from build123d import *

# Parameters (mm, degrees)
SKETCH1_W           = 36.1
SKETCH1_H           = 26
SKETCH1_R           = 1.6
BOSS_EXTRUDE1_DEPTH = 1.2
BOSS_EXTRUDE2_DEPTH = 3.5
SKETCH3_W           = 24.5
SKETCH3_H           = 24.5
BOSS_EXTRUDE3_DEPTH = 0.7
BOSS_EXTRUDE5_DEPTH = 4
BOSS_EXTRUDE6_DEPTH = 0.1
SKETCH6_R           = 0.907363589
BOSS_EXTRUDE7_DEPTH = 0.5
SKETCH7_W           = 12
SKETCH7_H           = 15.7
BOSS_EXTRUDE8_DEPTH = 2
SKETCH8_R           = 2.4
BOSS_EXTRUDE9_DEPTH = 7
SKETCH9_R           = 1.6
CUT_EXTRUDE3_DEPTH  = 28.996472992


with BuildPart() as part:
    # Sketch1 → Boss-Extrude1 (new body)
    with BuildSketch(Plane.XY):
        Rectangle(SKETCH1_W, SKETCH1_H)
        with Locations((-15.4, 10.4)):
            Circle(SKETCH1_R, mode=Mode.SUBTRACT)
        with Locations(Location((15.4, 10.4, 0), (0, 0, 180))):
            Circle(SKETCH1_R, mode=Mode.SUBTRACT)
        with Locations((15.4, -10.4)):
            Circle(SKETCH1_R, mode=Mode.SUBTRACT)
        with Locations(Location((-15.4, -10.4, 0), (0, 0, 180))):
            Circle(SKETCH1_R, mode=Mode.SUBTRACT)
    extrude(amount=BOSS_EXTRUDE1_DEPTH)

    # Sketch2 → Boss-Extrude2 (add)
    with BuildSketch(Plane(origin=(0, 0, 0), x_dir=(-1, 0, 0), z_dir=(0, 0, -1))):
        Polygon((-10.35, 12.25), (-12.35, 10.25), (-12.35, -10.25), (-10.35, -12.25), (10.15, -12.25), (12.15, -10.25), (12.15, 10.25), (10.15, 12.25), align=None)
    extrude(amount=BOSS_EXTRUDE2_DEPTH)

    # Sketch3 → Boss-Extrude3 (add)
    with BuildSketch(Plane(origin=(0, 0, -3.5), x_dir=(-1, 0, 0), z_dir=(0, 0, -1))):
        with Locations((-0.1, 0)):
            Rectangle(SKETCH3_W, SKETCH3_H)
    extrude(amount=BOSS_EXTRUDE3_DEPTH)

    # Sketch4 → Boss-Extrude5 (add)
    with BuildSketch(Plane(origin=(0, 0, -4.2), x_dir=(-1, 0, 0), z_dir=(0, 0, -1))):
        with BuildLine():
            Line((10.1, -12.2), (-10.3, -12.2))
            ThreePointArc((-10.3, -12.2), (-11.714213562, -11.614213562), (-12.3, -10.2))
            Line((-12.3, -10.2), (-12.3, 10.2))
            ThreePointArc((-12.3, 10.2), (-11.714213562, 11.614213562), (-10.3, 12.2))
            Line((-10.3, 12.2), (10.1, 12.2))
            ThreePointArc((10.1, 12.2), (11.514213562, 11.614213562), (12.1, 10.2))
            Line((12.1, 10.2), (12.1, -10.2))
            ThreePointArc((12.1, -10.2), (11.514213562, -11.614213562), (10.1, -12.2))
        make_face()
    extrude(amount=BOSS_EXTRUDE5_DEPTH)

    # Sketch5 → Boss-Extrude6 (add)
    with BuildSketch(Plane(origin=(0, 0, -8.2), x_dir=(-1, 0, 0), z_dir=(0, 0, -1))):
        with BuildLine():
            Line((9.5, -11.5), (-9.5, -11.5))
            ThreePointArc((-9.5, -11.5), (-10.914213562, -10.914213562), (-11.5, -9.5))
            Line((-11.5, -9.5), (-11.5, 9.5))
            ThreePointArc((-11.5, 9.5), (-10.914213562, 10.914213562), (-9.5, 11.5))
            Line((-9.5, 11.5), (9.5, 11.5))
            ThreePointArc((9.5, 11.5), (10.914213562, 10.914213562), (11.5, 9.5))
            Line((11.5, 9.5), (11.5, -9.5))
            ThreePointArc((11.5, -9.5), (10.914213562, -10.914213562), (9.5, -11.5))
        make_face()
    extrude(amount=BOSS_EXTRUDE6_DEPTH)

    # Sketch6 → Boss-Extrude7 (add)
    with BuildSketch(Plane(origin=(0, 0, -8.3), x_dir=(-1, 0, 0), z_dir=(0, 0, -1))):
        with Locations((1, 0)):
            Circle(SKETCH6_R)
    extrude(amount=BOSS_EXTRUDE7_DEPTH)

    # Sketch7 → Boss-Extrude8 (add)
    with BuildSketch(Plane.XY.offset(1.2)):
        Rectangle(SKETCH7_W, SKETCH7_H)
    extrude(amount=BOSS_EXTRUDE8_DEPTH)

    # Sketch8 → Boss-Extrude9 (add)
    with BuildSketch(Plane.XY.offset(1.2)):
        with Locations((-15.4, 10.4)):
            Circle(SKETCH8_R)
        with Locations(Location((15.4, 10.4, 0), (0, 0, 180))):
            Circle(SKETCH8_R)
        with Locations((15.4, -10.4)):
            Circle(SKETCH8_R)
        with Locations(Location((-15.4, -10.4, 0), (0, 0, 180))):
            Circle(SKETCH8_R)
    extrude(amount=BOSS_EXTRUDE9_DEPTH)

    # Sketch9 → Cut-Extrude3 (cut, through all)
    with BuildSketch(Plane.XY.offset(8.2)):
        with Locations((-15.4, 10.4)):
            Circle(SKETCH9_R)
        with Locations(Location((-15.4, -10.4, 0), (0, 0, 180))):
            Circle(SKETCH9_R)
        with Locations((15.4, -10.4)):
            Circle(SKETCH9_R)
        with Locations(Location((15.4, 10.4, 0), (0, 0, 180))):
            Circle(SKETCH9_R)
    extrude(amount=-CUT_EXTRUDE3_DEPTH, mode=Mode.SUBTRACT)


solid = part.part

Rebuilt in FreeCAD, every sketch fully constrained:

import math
import FreeCAD as App
import Part
import Sketcher
Q = App.Units.Quantity

doc = App.newDocument("Part")
body = doc.addObject("PartDesign::Body", "Body")

# Sketch on XY plane
sketch1 = body.newObject("Sketcher::SketchObject", "Sketch")
sketch1.AttachmentSupport = (doc.getObject("XY_Plane"), [""])
sketch1.MapMode = "FlatFace"
sketch1.addGeometry(Part.LineSegment(App.Vector(-18.1, 13, 0), App.Vector(-18.1, -13, 0)), False)
sketch1.addGeometry(Part.LineSegment(App.Vector(-18.1, -13, 0), App.Vector(18.1, -13, 0)), False)
sketch1.addGeometry(Part.LineSegment(App.Vector(18.1, -13, 0), App.Vector(18.1, 13, 0)), False)
sketch1.addGeometry(Part.LineSegment(App.Vector(18.1, 13, 0), App.Vector(-18.1, 13, 0)), False)
sketch1.addGeometry(Part.Circle(App.Vector(-15.4, -10.4, 0), App.Vector(0, 0, 1), 1.6), False)
sketch1.addGeometry(Part.Circle(App.Vector(15.4, -10.4, 0), App.Vector(0, 0, 1), 1.6), False)
sketch1.addGeometry(Part.Circle(App.Vector(-15.4, 10.4, 0), App.Vector(0, 0, 1), 1.6), False)
sketch1.addGeometry(Part.Circle(App.Vector(15.4, 10.4, 0), App.Vector(0, 0, 1), 1.6), False)
sketch1.addConstraint(Sketcher.Constraint("Coincident", 0, 2, 1, 1))
sketch1.addConstraint(Sketcher.Constraint("Coincident", 1, 2, 2, 1))
sketch1.addConstraint(Sketcher.Constraint("Coincident", 2, 2, 3, 1))
sketch1.addConstraint(Sketcher.Constraint("Coincident", 3, 2, 0, 1))
sketch1.addConstraint(Sketcher.Constraint("Vertical", 0))
sketch1.addConstraint(Sketcher.Constraint("Horizontal", 1))
sketch1.addConstraint(Sketcher.Constraint("Vertical", 2))
sketch1.addConstraint(Sketcher.Constraint("Horizontal", 3))
sketch1.addConstraint(Sketcher.Constraint("Equal", 4, 5))
sketch1.addConstraint(Sketcher.Constraint("Equal", 5, 6))
sketch1.addConstraint(Sketcher.Constraint("Equal", 6, 7))
sketch1.addConstraint(Sketcher.Constraint("Symmetric", 5, 3, 6, 3, -1, 1))
sketch1.addConstraint(Sketcher.Constraint("Symmetric", 4, 3, 7, 3, -1, 1))
sketch1.addConstraint(Sketcher.Constraint("Symmetric", 0, 2, 2, 2, -1, 1))
sketch1.addConstraint(Sketcher.Constraint("Symmetric", 4, 3, 5, 3, -2))
sketch1.addConstraint(Sketcher.Constraint("Diameter", 4, Q("3.2 mm")))
sketch1.addConstraint(Sketcher.Constraint("DistanceY", 0, 2, 0, 1, Q("26 mm")))
sketch1.addConstraint(Sketcher.Constraint("DistanceX", 1, 1, 1, 2, Q("36.1 mm")))
sketch1.addConstraint(Sketcher.Constraint("DistanceX", 4, 3, -1, 1, Q("15.4 mm")))
sketch1.addConstraint(Sketcher.Constraint("DistanceY", 4, 3, -1, 1, Q("10.4 mm")))
pad1 = body.newObject("PartDesign::Pad", "Pad")
pad1.Profile = sketch1
pad1.Length = 1.2

# Sketch on XY plane
sketch2 = body.newObject("Sketcher::SketchObject", "Sketch001")
sketch2.AttachmentSupport = (doc.getObject("XY_Plane"), [""])
sketch2.MapMode = "FlatFace"
sketch2.addGeometry(Part.LineSegment(App.Vector(10.3, 12.2, 0), App.Vector(12.3, 10.2, 0)), False)
sketch2.addGeometry(Part.LineSegment(App.Vector(12.3, 10.2, 0), App.Vector(12.3, -10.2, 0)), False)
sketch2.addGeometry(Part.LineSegment(App.Vector(12.3, -10.2, 0), App.Vector(10.3, -12.2, 0)), False)
sketch2.addGeometry(Part.LineSegment(App.Vector(10.3, -12.2, 0), App.Vector(-10.2, -12.2, 0)), False)
sketch2.addGeometry(Part.LineSegment(App.Vector(-10.2, -12.2, 0), App.Vector(-12.2, -10.2, 0)), False)
sketch2.addGeometry(Part.LineSegment(App.Vector(-12.2, -10.2, 0), App.Vector(-12.2, 10.2, 0)), False)
sketch2.addGeometry(Part.LineSegment(App.Vector(-12.2, 10.2, 0), App.Vector(-10.2, 12.2, 0)), False)
sketch2.addGeometry(Part.LineSegment(App.Vector(-10.2, 12.2, 0), App.Vector(10.3, 12.2, 0)), False)
sketch2.addConstraint(Sketcher.Constraint("Coincident", 0, 2, 1, 1))
sketch2.addConstraint(Sketcher.Constraint("Coincident", 1, 2, 2, 1))
sketch2.addConstraint(Sketcher.Constraint("Coincident", 2, 2, 3, 1))
sketch2.addConstraint(Sketcher.Constraint("Coincident", 3, 2, 4, 1))
sketch2.addConstraint(Sketcher.Constraint("Coincident", 4, 2, 5, 1))
sketch2.addConstraint(Sketcher.Constraint("Coincident", 5, 2, 6, 1))
sketch2.addConstraint(Sketcher.Constraint("Coincident", 6, 2, 7, 1))
sketch2.addConstraint(Sketcher.Constraint("Coincident", 7, 2, 0, 1))
sketch2.addConstraint(Sketcher.Constraint("Vertical", 1))
sketch2.addConstraint(Sketcher.Constraint("Horizontal", 3))
sketch2.addConstraint(Sketcher.Constraint("Vertical", 5))
sketch2.addConstraint(Sketcher.Constraint("Horizontal", 7))
sketch2.addConstraint(Sketcher.Constraint("Symmetric", 3, 2, 6, 2, -1))
sketch2.addConstraint(Sketcher.Constraint("Perpendicular", 0, 2))
sketch2.addConstraint(Sketcher.Constraint("Perpendicular", 2, 4))
sketch2.addConstraint(Sketcher.Constraint("Perpendicular", 4, 6))
sketch2.addConstraint(Sketcher.Constraint("Horizontal", 1, 2, 4, 2))
sketch2.addConstraint(Sketcher.Constraint("Horizontal", 0, 2, 5, 2))
sketch2.addConstraint(Sketcher.Constraint("Vertical", 2, 2, 7, 2))
sketch2.addConstraint(Sketcher.Constraint("Equal", 7, 1))
sketch2.addConstraint(Sketcher.Constraint("DistanceX", 3, 2, 3, 1, Q("20.5 mm")))
sketch2.addConstraint(Sketcher.Constraint("DistanceX", 2, 2, 1, 2, Q("2 mm")))
sketch2.addConstraint(Sketcher.Constraint("DistanceX", -1, 1, 0, 2, Q("12.35 mm")))
pad2 = body.newObject("PartDesign::Pad", "Pad001")
pad2.Profile = sketch2
pad2.Length = 3.5
pad2.Reversed = True

# Sketch on XY plane
sketch3 = body.newObject("Sketcher::SketchObject", "Sketch002")
sketch3.AttachmentSupport = (doc.getObject("XY_Plane"), [""])
sketch3.MapMode = "FlatFace"
sketch3.AttachmentOffset = App.Placement(App.Vector(0, 0, -3.5), App.Rotation())
sketch3.addGeometry(Part.LineSegment(App.Vector(12, 12, 0), App.Vector(12, -12, 0)), False)
sketch3.addGeometry(Part.LineSegment(App.Vector(12, -12, 0), App.Vector(-12, -12, 0)), False)
sketch3.addGeometry(Part.LineSegment(App.Vector(-12, -12, 0), App.Vector(-12, 12, 0)), False)
sketch3.addGeometry(Part.LineSegment(App.Vector(-12, 12, 0), App.Vector(12, 12, 0)), False)
sketch3.addConstraint(Sketcher.Constraint("Coincident", 0, 2, 1, 1))
sketch3.addConstraint(Sketcher.Constraint("Coincident", 1, 2, 2, 1))
sketch3.addConstraint(Sketcher.Constraint("Coincident", 2, 2, 3, 1))
sketch3.addConstraint(Sketcher.Constraint("Coincident", 3, 2, 0, 1))
sketch3.addConstraint(Sketcher.Constraint("Vertical", 0))
sketch3.addConstraint(Sketcher.Constraint("Horizontal", 1))
sketch3.addConstraint(Sketcher.Constraint("Vertical", 2))
sketch3.addConstraint(Sketcher.Constraint("Horizontal", 3))
sketch3.addConstraint(Sketcher.Constraint("Equal", 3, 0))
sketch3.addConstraint(Sketcher.Constraint("DistanceX", 1, 2, 1, 1, Q("24.5 mm")))
sketch3.addConstraint(Sketcher.Constraint("DistanceX", -1, 1, 0, 2, Q("12.35 mm")))
sketch3.addConstraint(Sketcher.Constraint("DistanceY", 0, 2, -1, 1, Q("12.25 mm")))
pad3 = body.newObject("PartDesign::Pad", "Pad002")
pad3.Profile = sketch3
pad3.Length = 0.7
pad3.Reversed = True

# Sketch on XY plane
sketch4 = body.newObject("Sketcher::SketchObject", "Sketch003")
sketch4.AttachmentSupport = (doc.getObject("XY_Plane"), [""])
sketch4.MapMode = "FlatFace"
sketch4.AttachmentOffset = App.Placement(App.Vector(0, 0, -4.2), App.Rotation())
sketch4.addGeometry(Part.LineSegment(App.Vector(10.3, -12.2, 0), App.Vector(-10.1, -12.2, 0)), False)
sketch4.addGeometry(Part.ArcOfCircle(Part.Circle(App.Vector(-10.1, -10.2, 0), App.Vector(0, 0, 1), 2), math.radians(-180), math.radians(-90)), False)
sketch4.addGeometry(Part.LineSegment(App.Vector(-12.1, -10.2, 0), App.Vector(-12.1, 10.2, 0)), False)
sketch4.addGeometry(Part.ArcOfCircle(Part.Circle(App.Vector(-10.1, 10.2, 0), App.Vector(0, 0, 1), 2), math.radians(90), math.radians(180)), False)
sketch4.addGeometry(Part.LineSegment(App.Vector(-10.1, 12.2, 0), App.Vector(10.3, 12.2, 0)), False)
sketch4.addGeometry(Part.ArcOfCircle(Part.Circle(App.Vector(10.3, 10.2, 0), App.Vector(0, 0, 1), 2), math.radians(0), math.radians(90)), False)
sketch4.addGeometry(Part.LineSegment(App.Vector(12.3, 10.2, 0), App.Vector(12.3, -10.2, 0)), False)
sketch4.addGeometry(Part.ArcOfCircle(Part.Circle(App.Vector(10.3, -10.2, 0), App.Vector(0, 0, 1), 2), math.radians(-90), math.radians(0)), False)
sketch4.addConstraint(Sketcher.Constraint("Tangent", 0, 2, 1, 2))
sketch4.addConstraint(Sketcher.Constraint("Tangent", 1, 1, 2, 1))
sketch4.addConstraint(Sketcher.Constraint("Tangent", 2, 2, 3, 2))
sketch4.addConstraint(Sketcher.Constraint("Tangent", 3, 1, 4, 1))
sketch4.addConstraint(Sketcher.Constraint("Tangent", 4, 2, 5, 2))
sketch4.addConstraint(Sketcher.Constraint("Tangent", 5, 1, 6, 1))
sketch4.addConstraint(Sketcher.Constraint("Tangent", 6, 2, 7, 2))
sketch4.addConstraint(Sketcher.Constraint("Tangent", 7, 1, 0, 1))
sketch4.addConstraint(Sketcher.Constraint("Horizontal", 0))
sketch4.addConstraint(Sketcher.Constraint("Vertical", 2))
sketch4.addConstraint(Sketcher.Constraint("Horizontal", 4))
sketch4.addConstraint(Sketcher.Constraint("Vertical", 6))
sketch4.addConstraint(Sketcher.Constraint("Equal", 1, 3))
sketch4.addConstraint(Sketcher.Constraint("Equal", 3, 5))
sketch4.addConstraint(Sketcher.Constraint("Equal", 5, 7))
sketch4.addConstraint(Sketcher.Constraint("Equal", 4, 2))
sketch4.addConstraint(Sketcher.Constraint("Radius", 1, Q("2 mm")))
sketch4.addConstraint(Sketcher.Constraint("DistanceX", 0, 2, 0, 1, Q("20.4 mm")))
sketch4.addConstraint(Sketcher.Constraint("DistanceX", 1, 3, -1, 1, Q("10.1 mm")))
sketch4.addConstraint(Sketcher.Constraint("DistanceY", 1, 3, -1, 1, Q("10.2 mm")))
pad4 = body.newObject("PartDesign::Pad", "Pad003")
pad4.Profile = sketch4
pad4.Length = 4
pad4.Reversed = True

# Sketch on XY plane
sketch5 = body.newObject("Sketcher::SketchObject", "Sketch004")
sketch5.AttachmentSupport = (doc.getObject("XY_Plane"), [""])
sketch5.MapMode = "FlatFace"
sketch5.AttachmentOffset = App.Placement(App.Vector(0, 0, -8.2), App.Rotation())
sketch5.addGeometry(Part.LineSegment(App.Vector(9.5, -11.5, 0), App.Vector(-9.5, -11.5, 0)), False)
sketch5.addGeometry(Part.ArcOfCircle(Part.Circle(App.Vector(-9.5, -9.5, 0), App.Vector(0, 0, 1), 2), math.radians(-180), math.radians(-90)), False)
sketch5.addGeometry(Part.LineSegment(App.Vector(-11.5, -9.5, 0), App.Vector(-11.5, 9.5, 0)), False)
sketch5.addGeometry(Part.ArcOfCircle(Part.Circle(App.Vector(-9.5, 9.5, 0), App.Vector(0, 0, 1), 2), math.radians(90), math.radians(180)), False)
sketch5.addGeometry(Part.LineSegment(App.Vector(-9.5, 11.5, 0), App.Vector(9.5, 11.5, 0)), False)
sketch5.addGeometry(Part.ArcOfCircle(Part.Circle(App.Vector(9.5, 9.5, 0), App.Vector(0, 0, 1), 2), math.radians(0), math.radians(90)), False)
sketch5.addGeometry(Part.LineSegment(App.Vector(11.5, 9.5, 0), App.Vector(11.5, -9.5, 0)), False)
sketch5.addGeometry(Part.ArcOfCircle(Part.Circle(App.Vector(9.5, -9.5, 0), App.Vector(0, 0, 1), 2), math.radians(-90), math.radians(0)), False)
sketch5.addConstraint(Sketcher.Constraint("Tangent", 0, 2, 1, 2))
sketch5.addConstraint(Sketcher.Constraint("Tangent", 1, 1, 2, 1))
sketch5.addConstraint(Sketcher.Constraint("Tangent", 2, 2, 3, 2))
sketch5.addConstraint(Sketcher.Constraint("Tangent", 3, 1, 4, 1))
sketch5.addConstraint(Sketcher.Constraint("Tangent", 4, 2, 5, 2))
sketch5.addConstraint(Sketcher.Constraint("Tangent", 5, 1, 6, 1))
sketch5.addConstraint(Sketcher.Constraint("Tangent", 6, 2, 7, 2))
sketch5.addConstraint(Sketcher.Constraint("Tangent", 7, 1, 0, 1))
sketch5.addConstraint(Sketcher.Constraint("Horizontal", 0))
sketch5.addConstraint(Sketcher.Constraint("Vertical", 2))
sketch5.addConstraint(Sketcher.Constraint("Horizontal", 4))
sketch5.addConstraint(Sketcher.Constraint("Vertical", 6))
sketch5.addConstraint(Sketcher.Constraint("Equal", 1, 3))
sketch5.addConstraint(Sketcher.Constraint("Equal", 3, 5))
sketch5.addConstraint(Sketcher.Constraint("Equal", 5, 7))
sketch5.addConstraint(Sketcher.Constraint("Symmetric", 1, 3, 5, 3, -1, 1))
sketch5.addConstraint(Sketcher.Constraint("Equal", 4, 2))
sketch5.addConstraint(Sketcher.Constraint("Radius", 1, Q("2 mm")))
sketch5.addConstraint(Sketcher.Constraint("DistanceX", 0, 2, 0, 1, Q("19 mm")))
pad5 = body.newObject("PartDesign::Pad", "Pad004")
pad5.Profile = sketch5
pad5.Length = 0.1
pad5.Reversed = True

# Sketch on XY plane
sketch6 = body.newObject("Sketcher::SketchObject", "Sketch005")
sketch6.AttachmentSupport = (doc.getObject("XY_Plane"), [""])
sketch6.MapMode = "FlatFace"
sketch6.AttachmentOffset = App.Placement(App.Vector(0, 0, -8.3), App.Rotation())
sketch6.addGeometry(Part.Circle(App.Vector(-1, 0, 0), App.Vector(0, 0, 1), 0.9), False)
sketch6.addConstraint(Sketcher.Constraint("PointOnObject", 0, 3, -1))
sketch6.addConstraint(Sketcher.Constraint("DistanceX", 0, 3, -1, 1, Q("1 mm")))
sketch6.addConstraint(Sketcher.Constraint("Diameter", 0, Q("1.814727 mm")))
pad6 = body.newObject("PartDesign::Pad", "Pad005")
pad6.Profile = sketch6
pad6.Length = 0.5
pad6.Reversed = True

# Sketch on XY plane
sketch7 = body.newObject("Sketcher::SketchObject", "Sketch006")
sketch7.AttachmentSupport = (doc.getObject("XY_Plane"), [""])
sketch7.MapMode = "FlatFace"
sketch7.AttachmentOffset = App.Placement(App.Vector(0, 0, 1.2), App.Rotation())
sketch7.addGeometry(Part.LineSegment(App.Vector(-6, 8, 0), App.Vector(-6, -8, 0)), False)
sketch7.addGeometry(Part.LineSegment(App.Vector(-6, -8, 0), App.Vector(6, -8, 0)), False)
sketch7.addGeometry(Part.LineSegment(App.Vector(6, -8, 0), App.Vector(6, 8, 0)), False)
sketch7.addGeometry(Part.LineSegment(App.Vector(6, 8, 0), App.Vector(-6, 8, 0)), False)
sketch7.addConstraint(Sketcher.Constraint("Coincident", 0, 2, 1, 1))
sketch7.addConstraint(Sketcher.Constraint("Coincident", 1, 2, 2, 1))
sketch7.addConstraint(Sketcher.Constraint("Coincident", 2, 2, 3, 1))
sketch7.addConstraint(Sketcher.Constraint("Coincident", 3, 2, 0, 1))
sketch7.addConstraint(Sketcher.Constraint("Vertical", 0))
sketch7.addConstraint(Sketcher.Constraint("Horizontal", 1))
sketch7.addConstraint(Sketcher.Constraint("Vertical", 2))
sketch7.addConstraint(Sketcher.Constraint("Horizontal", 3))
sketch7.addConstraint(Sketcher.Constraint("Symmetric", 0, 2, 2, 2, -1, 1))
sketch7.addConstraint(Sketcher.Constraint("DistanceX", 1, 1, 1, 2, Q("12 mm")))
sketch7.addConstraint(Sketcher.Constraint("DistanceY", 0, 2, 0, 1, Q("15.7 mm")))
pad7 = body.newObject("PartDesign::Pad", "Pad006")
pad7.Profile = sketch7
pad7.Length = 2

# Sketch on XY plane
sketch8 = body.newObject("Sketcher::SketchObject", "Sketch007")
sketch8.AttachmentSupport = (doc.getObject("XY_Plane"), [""])
sketch8.MapMode = "FlatFace"
sketch8.AttachmentOffset = App.Placement(App.Vector(0, 0, 1.2), App.Rotation())
sketch8.addGeometry(Part.Circle(App.Vector(-15.4, 10.4, 0), App.Vector(0, 0, 1), 2.4), False)
sketch8.addGeometry(Part.Circle(App.Vector(15.4, 10.4, 0), App.Vector(0, 0, 1), 2.4), False)
sketch8.addGeometry(Part.Circle(App.Vector(15.4, -10.4, 0), App.Vector(0, 0, 1), 2.4), False)
sketch8.addGeometry(Part.Circle(App.Vector(-15.4, -10.4, 0), App.Vector(0, 0, 1), 2.4), False)
sketch8.addConstraint(Sketcher.Constraint("Equal", 0, 1))
sketch8.addConstraint(Sketcher.Constraint("Equal", 1, 2))
sketch8.addConstraint(Sketcher.Constraint("Equal", 2, 3))
sketch8.addConstraint(Sketcher.Constraint("Symmetric", 0, 3, 2, 3, -1, 1))
sketch8.addConstraint(Sketcher.Constraint("Symmetric", 1, 3, 3, 3, -1, 1))
sketch8.addConstraint(Sketcher.Constraint("Symmetric", 0, 3, 1, 3, -2))
sketch8.addConstraint(Sketcher.Constraint("Diameter", 0, Q("4.8 mm")))
sketch8.addConstraint(Sketcher.Constraint("DistanceX", 0, 3, -1, 1, Q("15.4 mm")))
sketch8.addConstraint(Sketcher.Constraint("DistanceY", -1, 1, 0, 3, Q("10.4 mm")))
pad8 = body.newObject("PartDesign::Pad", "Pad007")
pad8.Profile = sketch8
pad8.Length = 7

# Sketch on XY plane
sketch9 = body.newObject("Sketcher::SketchObject", "Sketch008")
sketch9.AttachmentSupport = (doc.getObject("XY_Plane"), [""])
sketch9.MapMode = "FlatFace"
sketch9.AttachmentOffset = App.Placement(App.Vector(0, 0, 8.2), App.Rotation())
sketch9.addGeometry(Part.Circle(App.Vector(-15.4, 10.4, 0), App.Vector(0, 0, 1), 1.6), False)
sketch9.addGeometry(Part.Circle(App.Vector(-15.4, -10.4, 0), App.Vector(0, 0, 1), 1.6), False)
sketch9.addGeometry(Part.Circle(App.Vector(15.4, -10.4, 0), App.Vector(0, 0, 1), 1.6), False)
sketch9.addGeometry(Part.Circle(App.Vector(15.4, 10.4, 0), App.Vector(0, 0, 1), 1.6), False)
sketch9.addConstraint(Sketcher.Constraint("Equal", 0, 1))
sketch9.addConstraint(Sketcher.Constraint("Equal", 1, 2))
sketch9.addConstraint(Sketcher.Constraint("Equal", 2, 3))
sketch9.addConstraint(Sketcher.Constraint("Symmetric", 0, 3, 2, 3, -1, 1))
sketch9.addConstraint(Sketcher.Constraint("Symmetric", 1, 3, 3, 3, -1, 1))
sketch9.addConstraint(Sketcher.Constraint("Symmetric", 1, 3, 2, 3, -2))
sketch9.addConstraint(Sketcher.Constraint("Diameter", 0, Q("3.2 mm")))
sketch9.addConstraint(Sketcher.Constraint("DistanceX", 0, 3, -1, 1, Q("15.4 mm")))
sketch9.addConstraint(Sketcher.Constraint("DistanceY", -1, 1, 0, 3, Q("10.4 mm")))
pocket1 = body.newObject("PartDesign::Pocket", "Pocket")
pocket1.Profile = sketch9
pocket1.Type = "ThroughAll"

doc.recompute()
